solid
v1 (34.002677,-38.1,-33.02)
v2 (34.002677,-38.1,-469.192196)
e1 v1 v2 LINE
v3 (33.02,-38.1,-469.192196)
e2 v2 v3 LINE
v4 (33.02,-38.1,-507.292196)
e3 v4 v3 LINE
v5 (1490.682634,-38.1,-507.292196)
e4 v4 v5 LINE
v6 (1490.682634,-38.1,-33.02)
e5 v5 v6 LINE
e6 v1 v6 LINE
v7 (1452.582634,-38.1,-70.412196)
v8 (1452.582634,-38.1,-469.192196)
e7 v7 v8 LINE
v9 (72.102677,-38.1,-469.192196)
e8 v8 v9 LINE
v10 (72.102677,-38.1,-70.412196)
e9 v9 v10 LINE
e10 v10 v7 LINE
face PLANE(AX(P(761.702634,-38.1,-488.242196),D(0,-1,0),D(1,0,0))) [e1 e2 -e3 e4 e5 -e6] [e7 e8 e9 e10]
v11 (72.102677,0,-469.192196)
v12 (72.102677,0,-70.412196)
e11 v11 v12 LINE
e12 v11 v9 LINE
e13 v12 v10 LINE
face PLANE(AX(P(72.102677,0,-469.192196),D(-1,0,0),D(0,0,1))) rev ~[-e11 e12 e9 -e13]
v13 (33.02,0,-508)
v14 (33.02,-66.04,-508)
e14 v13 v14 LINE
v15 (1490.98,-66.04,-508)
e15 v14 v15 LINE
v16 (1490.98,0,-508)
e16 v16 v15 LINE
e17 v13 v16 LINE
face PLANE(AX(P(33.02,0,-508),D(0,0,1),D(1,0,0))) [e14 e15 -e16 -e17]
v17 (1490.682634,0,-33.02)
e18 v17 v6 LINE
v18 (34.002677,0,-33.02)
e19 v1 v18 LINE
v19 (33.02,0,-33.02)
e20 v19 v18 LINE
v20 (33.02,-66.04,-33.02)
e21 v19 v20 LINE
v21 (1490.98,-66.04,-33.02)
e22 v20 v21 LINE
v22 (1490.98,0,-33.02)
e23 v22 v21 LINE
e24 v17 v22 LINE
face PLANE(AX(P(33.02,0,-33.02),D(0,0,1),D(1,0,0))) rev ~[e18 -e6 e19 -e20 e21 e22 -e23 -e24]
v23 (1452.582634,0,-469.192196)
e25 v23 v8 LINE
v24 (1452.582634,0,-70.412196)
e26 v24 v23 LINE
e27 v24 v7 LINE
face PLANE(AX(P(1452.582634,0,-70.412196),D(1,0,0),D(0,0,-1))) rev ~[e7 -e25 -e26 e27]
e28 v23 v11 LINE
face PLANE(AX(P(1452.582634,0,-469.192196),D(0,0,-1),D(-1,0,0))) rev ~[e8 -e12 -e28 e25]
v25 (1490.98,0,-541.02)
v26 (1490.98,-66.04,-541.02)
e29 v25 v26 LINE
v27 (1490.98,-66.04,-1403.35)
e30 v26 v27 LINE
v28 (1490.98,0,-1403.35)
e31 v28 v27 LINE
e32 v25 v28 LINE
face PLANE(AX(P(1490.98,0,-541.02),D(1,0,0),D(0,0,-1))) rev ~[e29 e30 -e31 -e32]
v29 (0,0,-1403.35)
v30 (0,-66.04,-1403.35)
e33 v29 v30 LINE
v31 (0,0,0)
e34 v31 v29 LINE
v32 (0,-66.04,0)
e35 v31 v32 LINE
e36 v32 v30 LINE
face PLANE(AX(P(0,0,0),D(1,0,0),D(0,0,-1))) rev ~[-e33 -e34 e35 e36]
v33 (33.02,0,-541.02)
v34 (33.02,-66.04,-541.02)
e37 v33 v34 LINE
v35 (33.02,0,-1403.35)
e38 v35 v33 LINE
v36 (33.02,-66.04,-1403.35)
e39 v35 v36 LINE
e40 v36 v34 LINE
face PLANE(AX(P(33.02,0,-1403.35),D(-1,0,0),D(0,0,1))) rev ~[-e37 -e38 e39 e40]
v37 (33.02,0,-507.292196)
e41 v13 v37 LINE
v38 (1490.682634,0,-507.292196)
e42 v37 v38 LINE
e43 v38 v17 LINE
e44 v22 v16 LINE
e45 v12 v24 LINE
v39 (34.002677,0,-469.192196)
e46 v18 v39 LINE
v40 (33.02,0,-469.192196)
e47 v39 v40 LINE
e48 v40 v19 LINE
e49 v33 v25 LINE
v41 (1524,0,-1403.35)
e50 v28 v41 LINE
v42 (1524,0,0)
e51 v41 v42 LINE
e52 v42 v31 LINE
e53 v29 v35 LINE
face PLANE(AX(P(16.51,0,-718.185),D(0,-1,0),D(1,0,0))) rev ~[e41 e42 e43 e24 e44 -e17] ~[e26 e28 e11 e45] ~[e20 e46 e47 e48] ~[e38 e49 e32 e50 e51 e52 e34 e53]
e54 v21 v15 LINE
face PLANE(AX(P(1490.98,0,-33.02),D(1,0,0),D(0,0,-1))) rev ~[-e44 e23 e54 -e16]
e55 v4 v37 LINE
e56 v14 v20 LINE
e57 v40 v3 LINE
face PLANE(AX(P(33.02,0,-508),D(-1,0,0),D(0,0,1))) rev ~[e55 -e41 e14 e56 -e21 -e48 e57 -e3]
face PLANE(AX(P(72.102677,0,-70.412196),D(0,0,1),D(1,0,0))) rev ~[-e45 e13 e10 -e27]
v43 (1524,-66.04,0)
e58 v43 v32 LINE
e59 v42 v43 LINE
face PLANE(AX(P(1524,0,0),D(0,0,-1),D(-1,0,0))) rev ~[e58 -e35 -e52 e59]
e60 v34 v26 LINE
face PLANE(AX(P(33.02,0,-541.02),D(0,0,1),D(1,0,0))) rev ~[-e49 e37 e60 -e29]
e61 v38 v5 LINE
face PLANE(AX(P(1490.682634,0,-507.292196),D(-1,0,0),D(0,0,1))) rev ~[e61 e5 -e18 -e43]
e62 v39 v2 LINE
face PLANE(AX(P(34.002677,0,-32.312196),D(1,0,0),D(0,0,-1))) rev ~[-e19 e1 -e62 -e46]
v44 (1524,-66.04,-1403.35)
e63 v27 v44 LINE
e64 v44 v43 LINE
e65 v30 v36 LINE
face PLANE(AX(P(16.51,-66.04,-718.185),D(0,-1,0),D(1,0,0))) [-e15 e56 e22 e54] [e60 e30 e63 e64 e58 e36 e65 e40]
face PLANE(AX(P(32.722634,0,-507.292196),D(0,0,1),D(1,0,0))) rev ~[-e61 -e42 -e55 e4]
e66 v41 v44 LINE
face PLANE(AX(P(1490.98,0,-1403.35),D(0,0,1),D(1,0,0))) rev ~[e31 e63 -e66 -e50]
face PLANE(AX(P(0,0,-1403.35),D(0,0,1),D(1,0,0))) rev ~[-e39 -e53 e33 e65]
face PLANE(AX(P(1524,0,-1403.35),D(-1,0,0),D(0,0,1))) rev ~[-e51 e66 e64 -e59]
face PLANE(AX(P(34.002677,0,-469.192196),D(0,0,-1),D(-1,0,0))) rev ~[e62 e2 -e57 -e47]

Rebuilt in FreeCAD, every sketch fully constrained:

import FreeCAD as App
import Part
import Sketcher
Q = App.Units.Quantity


def add_polygon(sketch, points):
    """Adds a closed chain of lines whose ends are joined by coincident constraints."""
    first, n = sketch.GeometryCount, len(points)
    for a, b in zip(points, points[1:] + points[:1]):
        sketch.addGeometry(Part.LineSegment(App.Vector(*a, 0), App.Vector(*b, 0)), False)
    for i in range(n):
        sketch.addConstraint(Sketcher.Constraint("Coincident", first + i, 2, first + (i + 1) % n, 1))

doc = App.newDocument("Part")
body = doc.addObject("PartDesign::Body", "Body")

# Sketch on XZ plane
sketch1 = doc.addObject("Sketcher::SketchObject", "Sketch")
body.addObject(sketch1)
sketch1.AttachmentSupport = (doc.XZ_Plane, [""])
sketch1.MapMode = "FlatFace"
add_polygon(sketch1, [(0, -1403), (33, -1403), (33, -541), (1491, -541), (1491, -1403), (1524, -1403), (1524, 0), (0, 0)])  # lines 0-7
add_polygon(sketch1, [(1491, -508), (33, -508), (33, -33), (1491, -33)])  # lines 8-11
sketch1.addConstraint(Sketcher.Constraint("Horizontal", 0))
sketch1.addConstraint(Sketcher.Constraint("Vertical", 1))
sketch1.addConstraint(Sketcher.Constraint("Horizontal", 2))
sketch1.addConstraint(Sketcher.Constraint("Vertical", 3))
sketch1.addConstraint(Sketcher.Constraint("Horizontal", 4))
sketch1.addConstraint(Sketcher.Constraint("Vertical", 5))
sketch1.addConstraint(Sketcher.Constraint("Horizontal", 6))
sketch1.addConstraint(Sketcher.Constraint("Vertical", 7))
sketch1.addConstraint(Sketcher.Constraint("Horizontal", 8))
sketch1.addConstraint(Sketcher.Constraint("Vertical", 9))
sketch1.addConstraint(Sketcher.Constraint("Horizontal", 10))
sketch1.addConstraint(Sketcher.Constraint("Vertical", 11))
sketch1.addConstraint(Sketcher.Constraint("Coincident", 6, 2, -1, 1))
sketch1.addConstraint(Sketcher.Constraint("Horizontal", 0, 2, 3, 2))
sketch1.addConstraint(Sketcher.Constraint("Vertical", 1, 2, 8, 2))
sketch1.addConstraint(Sketcher.Constraint("Vertical", 3, 2, 10, 2))
sketch1.addConstraint(Sketcher.Constraint("Equal", 0, 4))
sketch1.addConstraint(Sketcher.Constraint("DistanceX", 6, 2, 6, 1, Q("60 in")))
sketch1.addConstraint(Sketcher.Constraint("DistanceX", 0, 1, 0, 2, Q("1.3 in")))
sketch1.addConstraint(Sketcher.Constraint("DistanceY", 9, 1, 9, 2, Q("18.7 in")))
sketch1.addConstraint(Sketcher.Constraint("DistanceY", 8, 2, -1, 1, Q("20 in")))
sketch1.addConstraint(Sketcher.Constraint("DistanceY", 1, 2, 9, 2, Q("20 in")))
sketch1.addConstraint(Sketcher.Constraint("DistanceY", 1, 1, 1, 2, Q("33.95 in")))
pad1 = doc.addObject("PartDesign::Pad", "Pad")
body.addObject(pad1)
pad1.Profile = sketch1
pad1.Length = Q("2.6 in")

# Sketch on XZ plane
sketch2 = doc.addObject("Sketcher::SketchObject", "Sketch001")
body.addObject(sketch2)
sketch2.AttachmentSupport = (doc.XZ_Plane, [""])
sketch2.MapMode = "FlatFace"
add_polygon(sketch2, [(32.7, -469.2), (32.7, -507.3), (1490.7, -507.3), (1490.7, -32.3), (34, -32.3), (34, -469.2)])  # lines 0-5
add_polygon(sketch2, [(1452.6, -469.2), (72.1, -469.2), (72.1, -70.4), (1452.6, -70.4)])  # lines 6-9
sketch2.addConstraint(Sketcher.Constraint("Vertical", 0))
sketch2.addConstraint(Sketcher.Constraint("Horizontal", 1))
sketch2.addConstraint(Sketcher.Constraint("Vertical", 2))
sketch2.addConstraint(Sketcher.Constraint("Horizontal", 3))
sketch2.addConstraint(Sketcher.Constraint("Vertical", 4))
sketch2.addConstraint(Sketcher.Constraint("Horizontal", 5))
sketch2.addConstraint(Sketcher.Constraint("Horizontal", 6))
sketch2.addConstraint(Sketcher.Constraint("Vertical", 7))
sketch2.addConstraint(Sketcher.Constraint("Horizontal", 8))
sketch2.addConstraint(Sketcher.Constraint("Vertical", 9))
sketch2.addConstraint(Sketcher.Constraint("Horizontal", 5, 2, 6, 2))
sketch2.addConstraint(Sketcher.Constraint("DistanceX", 1, 1, 1, 2, Q("57.4 in")))
sketch2.addConstraint(Sketcher.Constraint("DistanceY", 0, 2, 0, 1, Q("1.5 in")))
sketch2.addConstraint(Sketcher.Constraint("DistanceY", 2, 1, 2, 2, Q("18.7 in")))
sketch2.addConstraint(Sketcher.Constraint("DistanceY", 7, 1, 7, 2, Q("15.7 in")))
sketch2.addConstraint(Sketcher.Constraint("DistanceX", 4, 2, 6, 2, Q("1.5 in")))
sketch2.addConstraint(Sketcher.Constraint("DistanceX", 8, 2, 2, 2, Q("1.5 in")))
sketch2.addConstraint(Sketcher.Constraint("DistanceX", 3, 2, 3, 1, 1456.679957))
sketch2.addConstraint(Sketcher.Constraint("DistanceX", -1, 1, 0, 2, 32.722634))
sketch2.addConstraint(Sketcher.Constraint("DistanceY", 0, 2, -1, 1, 507.292196))
pad2 = doc.addObject("PartDesign::Pad", "Pad001")
body.addObject(pad2)
pad2.Profile = sketch2
pad2.Length = Q("1.5 in")

doc.recompute()
